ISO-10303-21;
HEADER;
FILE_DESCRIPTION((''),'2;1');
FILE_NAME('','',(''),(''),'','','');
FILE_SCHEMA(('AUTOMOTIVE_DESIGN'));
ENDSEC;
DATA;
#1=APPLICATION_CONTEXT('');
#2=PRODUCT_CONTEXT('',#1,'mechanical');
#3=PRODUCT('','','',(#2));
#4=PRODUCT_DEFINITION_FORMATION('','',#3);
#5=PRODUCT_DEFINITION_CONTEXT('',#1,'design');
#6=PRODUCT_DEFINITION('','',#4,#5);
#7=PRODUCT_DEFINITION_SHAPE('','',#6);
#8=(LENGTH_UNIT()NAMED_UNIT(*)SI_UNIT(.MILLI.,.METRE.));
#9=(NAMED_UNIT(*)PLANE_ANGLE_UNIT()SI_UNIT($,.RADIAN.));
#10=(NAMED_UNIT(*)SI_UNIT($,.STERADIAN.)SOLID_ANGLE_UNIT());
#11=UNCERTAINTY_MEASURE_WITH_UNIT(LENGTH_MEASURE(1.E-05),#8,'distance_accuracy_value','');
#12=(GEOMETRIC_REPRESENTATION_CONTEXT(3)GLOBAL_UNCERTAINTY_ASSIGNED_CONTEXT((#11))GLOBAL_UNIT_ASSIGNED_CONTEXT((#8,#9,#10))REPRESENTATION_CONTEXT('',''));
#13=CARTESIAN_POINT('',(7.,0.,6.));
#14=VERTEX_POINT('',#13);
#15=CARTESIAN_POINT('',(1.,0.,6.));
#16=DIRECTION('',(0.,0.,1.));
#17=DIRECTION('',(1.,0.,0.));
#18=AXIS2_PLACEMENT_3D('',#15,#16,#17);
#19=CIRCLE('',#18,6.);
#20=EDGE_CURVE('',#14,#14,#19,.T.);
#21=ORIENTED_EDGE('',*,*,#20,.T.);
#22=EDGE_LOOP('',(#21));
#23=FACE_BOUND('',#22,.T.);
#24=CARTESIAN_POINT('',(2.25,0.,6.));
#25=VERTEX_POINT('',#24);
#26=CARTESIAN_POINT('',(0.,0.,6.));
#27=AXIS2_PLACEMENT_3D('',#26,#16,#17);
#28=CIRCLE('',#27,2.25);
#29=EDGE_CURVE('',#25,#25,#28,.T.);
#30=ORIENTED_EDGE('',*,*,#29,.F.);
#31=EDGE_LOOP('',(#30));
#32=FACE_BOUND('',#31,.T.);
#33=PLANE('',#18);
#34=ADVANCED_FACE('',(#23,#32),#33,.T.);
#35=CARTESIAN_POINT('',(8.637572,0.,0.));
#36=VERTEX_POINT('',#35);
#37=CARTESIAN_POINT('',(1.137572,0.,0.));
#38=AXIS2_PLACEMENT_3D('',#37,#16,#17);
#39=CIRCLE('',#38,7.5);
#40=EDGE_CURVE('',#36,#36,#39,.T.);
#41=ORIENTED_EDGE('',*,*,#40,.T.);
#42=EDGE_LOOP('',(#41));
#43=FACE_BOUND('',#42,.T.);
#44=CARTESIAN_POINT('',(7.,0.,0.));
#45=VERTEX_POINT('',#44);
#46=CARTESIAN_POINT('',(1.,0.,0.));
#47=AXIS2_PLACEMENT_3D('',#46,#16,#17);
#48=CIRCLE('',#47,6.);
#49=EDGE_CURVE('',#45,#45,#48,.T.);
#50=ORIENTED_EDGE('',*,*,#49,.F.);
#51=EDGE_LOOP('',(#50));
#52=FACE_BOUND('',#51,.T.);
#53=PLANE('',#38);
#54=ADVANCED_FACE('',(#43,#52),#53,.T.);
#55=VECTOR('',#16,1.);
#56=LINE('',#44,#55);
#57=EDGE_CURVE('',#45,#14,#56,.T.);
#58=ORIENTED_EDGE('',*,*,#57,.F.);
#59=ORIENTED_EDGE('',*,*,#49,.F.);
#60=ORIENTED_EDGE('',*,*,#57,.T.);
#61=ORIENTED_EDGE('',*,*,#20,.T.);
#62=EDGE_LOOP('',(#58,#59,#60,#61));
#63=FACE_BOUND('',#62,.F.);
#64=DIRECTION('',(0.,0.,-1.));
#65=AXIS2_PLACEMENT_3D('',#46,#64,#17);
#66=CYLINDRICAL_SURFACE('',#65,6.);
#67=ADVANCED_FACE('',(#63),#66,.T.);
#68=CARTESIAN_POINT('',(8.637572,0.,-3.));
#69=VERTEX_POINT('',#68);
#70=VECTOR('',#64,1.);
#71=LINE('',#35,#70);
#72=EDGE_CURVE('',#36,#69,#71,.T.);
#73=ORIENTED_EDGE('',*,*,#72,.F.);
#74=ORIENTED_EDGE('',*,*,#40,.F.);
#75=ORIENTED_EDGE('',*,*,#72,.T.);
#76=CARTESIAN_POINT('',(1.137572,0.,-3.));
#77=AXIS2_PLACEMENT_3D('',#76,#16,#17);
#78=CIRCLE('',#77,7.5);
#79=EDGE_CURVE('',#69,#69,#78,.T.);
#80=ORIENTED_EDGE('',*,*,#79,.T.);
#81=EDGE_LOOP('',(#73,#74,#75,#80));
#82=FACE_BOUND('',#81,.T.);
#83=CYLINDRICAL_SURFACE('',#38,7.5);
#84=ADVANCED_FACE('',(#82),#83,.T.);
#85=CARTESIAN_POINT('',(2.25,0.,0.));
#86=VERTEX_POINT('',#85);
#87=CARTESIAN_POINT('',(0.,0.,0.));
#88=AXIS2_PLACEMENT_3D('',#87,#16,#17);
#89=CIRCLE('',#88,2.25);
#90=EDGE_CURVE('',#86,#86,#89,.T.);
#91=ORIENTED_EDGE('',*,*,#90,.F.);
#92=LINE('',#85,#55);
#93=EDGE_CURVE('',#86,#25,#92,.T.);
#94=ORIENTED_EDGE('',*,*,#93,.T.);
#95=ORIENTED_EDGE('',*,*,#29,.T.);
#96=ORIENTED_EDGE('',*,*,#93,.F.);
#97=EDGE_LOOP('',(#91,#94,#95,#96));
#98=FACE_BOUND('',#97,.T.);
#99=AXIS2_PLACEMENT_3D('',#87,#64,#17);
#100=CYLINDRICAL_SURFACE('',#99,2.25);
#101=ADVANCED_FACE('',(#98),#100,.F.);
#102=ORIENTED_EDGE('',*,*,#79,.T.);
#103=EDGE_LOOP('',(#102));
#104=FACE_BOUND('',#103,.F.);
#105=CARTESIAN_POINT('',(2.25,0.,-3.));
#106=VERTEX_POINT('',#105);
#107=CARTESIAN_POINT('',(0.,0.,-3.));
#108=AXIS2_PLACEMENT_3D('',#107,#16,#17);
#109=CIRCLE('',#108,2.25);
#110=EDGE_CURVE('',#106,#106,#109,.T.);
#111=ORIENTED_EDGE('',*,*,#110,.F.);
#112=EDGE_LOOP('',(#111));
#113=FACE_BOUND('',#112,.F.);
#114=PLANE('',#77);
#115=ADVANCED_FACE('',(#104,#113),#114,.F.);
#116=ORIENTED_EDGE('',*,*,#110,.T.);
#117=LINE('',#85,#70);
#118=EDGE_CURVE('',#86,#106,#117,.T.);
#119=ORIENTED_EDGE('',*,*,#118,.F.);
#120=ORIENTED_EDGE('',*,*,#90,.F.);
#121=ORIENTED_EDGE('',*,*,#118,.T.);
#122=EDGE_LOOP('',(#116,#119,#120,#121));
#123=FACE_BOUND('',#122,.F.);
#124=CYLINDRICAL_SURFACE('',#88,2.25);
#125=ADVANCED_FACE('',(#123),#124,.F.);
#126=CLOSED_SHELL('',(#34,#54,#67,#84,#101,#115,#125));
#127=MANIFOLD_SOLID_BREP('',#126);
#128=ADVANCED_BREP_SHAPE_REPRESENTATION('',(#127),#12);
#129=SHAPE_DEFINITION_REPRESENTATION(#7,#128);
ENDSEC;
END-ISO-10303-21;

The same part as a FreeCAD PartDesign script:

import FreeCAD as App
import Part
import Sketcher
from FreeCAD import Vector
Q = App.Units.Quantity

doc = App.newDocument("Part")
params = doc.addObject("Spreadsheet::Sheet", "Params")
for row, (alias, value) in enumerate([
    ("sketch1_diameter", "12 mm"),
    ("sketch1_diameter2", "4.5 mm"),
    ("pad1_length", "6 mm"),
    ("sketch2_diameter", "15 mm"),
    ("sketch2_diameter2", "4.5 mm"),
    ("pad2_length", "3 mm"),
], start=1):
    params.set(f"A{row}", alias)
    params.set(f"B{row}", "=" + value)
    params.setAlias(f"B{row}", alias)

body = doc.addObject("PartDesign::Body", "Body")

sketch1 = body.newObject("Sketcher::SketchObject", "Sketch")
sketch1.AttachmentSupport = (doc.getObject("XY_Plane"), [""])
sketch1.MapMode = "FlatFace"
sketch1.addGeometry([
    Part.Circle(Vector(1, 0, 0), Vector(0, 0, 1), 6),
    Part.Circle(Vector(0, 0, 0), Vector(0, 0, 1), 2.2),
], False)
sketch1.addConstraint([
    Sketcher.Constraint("Coincident", 1, 3, -1, 1),
    Sketcher.Constraint("PointOnObject", 0, 3, -1),
    Sketcher.Constraint("Diameter", 0, Q("12 mm")),
    Sketcher.Constraint("Diameter", 1, Q("4.5 mm")),
    Sketcher.Constraint("DistanceX", -1, 1, 0, 3, Q("1 mm")),
])
sketch1.setExpression("Constraints[2]", "Params.sketch1_diameter")
sketch1.setExpression("Constraints[3]", "Params.sketch1_diameter2")
pad1 = body.newObject("PartDesign::Pad", "Pad")
pad1.Profile = sketch1
pad1.setExpression("Length", "Params.pad1_length")

sketch2 = body.newObject("Sketcher::SketchObject", "Sketch001")
sketch2.AttachmentSupport = (doc.getObject("XY_Plane"), [""])
sketch2.MapMode = "FlatFace"
sketch2.addGeometry([
    Part.Circle(Vector(1.1, 0, 0), Vector(0, 0, 1), 7.5),
    Part.Circle(Vector(0, 0, 0), Vector(0, 0, 1), 2.2),
], False)
sketch2.addConstraint([
    Sketcher.Constraint("Coincident", 1, 3, -1, 1),
    Sketcher.Constraint("PointOnObject", 0, 3, -1),
    Sketcher.Constraint("Diameter", 0, Q("15 mm")),
    Sketcher.Constraint("Diameter", 1, Q("4.5 mm")),
    Sketcher.Constraint("DistanceX", -1, 1, 0, 3, Q("1.137572 mm")),
])
sketch2.setExpression("Constraints[2]", "Params.sketch2_diameter")
sketch2.setExpression("Constraints[3]", "Params.sketch2_diameter2")
pad2 = body.newObject("PartDesign::Pad", "Pad001")
pad2.Profile = sketch2
pad2.setExpression("Length", "Params.pad2_length")
pad2.Reversed = True

doc.recompute()
